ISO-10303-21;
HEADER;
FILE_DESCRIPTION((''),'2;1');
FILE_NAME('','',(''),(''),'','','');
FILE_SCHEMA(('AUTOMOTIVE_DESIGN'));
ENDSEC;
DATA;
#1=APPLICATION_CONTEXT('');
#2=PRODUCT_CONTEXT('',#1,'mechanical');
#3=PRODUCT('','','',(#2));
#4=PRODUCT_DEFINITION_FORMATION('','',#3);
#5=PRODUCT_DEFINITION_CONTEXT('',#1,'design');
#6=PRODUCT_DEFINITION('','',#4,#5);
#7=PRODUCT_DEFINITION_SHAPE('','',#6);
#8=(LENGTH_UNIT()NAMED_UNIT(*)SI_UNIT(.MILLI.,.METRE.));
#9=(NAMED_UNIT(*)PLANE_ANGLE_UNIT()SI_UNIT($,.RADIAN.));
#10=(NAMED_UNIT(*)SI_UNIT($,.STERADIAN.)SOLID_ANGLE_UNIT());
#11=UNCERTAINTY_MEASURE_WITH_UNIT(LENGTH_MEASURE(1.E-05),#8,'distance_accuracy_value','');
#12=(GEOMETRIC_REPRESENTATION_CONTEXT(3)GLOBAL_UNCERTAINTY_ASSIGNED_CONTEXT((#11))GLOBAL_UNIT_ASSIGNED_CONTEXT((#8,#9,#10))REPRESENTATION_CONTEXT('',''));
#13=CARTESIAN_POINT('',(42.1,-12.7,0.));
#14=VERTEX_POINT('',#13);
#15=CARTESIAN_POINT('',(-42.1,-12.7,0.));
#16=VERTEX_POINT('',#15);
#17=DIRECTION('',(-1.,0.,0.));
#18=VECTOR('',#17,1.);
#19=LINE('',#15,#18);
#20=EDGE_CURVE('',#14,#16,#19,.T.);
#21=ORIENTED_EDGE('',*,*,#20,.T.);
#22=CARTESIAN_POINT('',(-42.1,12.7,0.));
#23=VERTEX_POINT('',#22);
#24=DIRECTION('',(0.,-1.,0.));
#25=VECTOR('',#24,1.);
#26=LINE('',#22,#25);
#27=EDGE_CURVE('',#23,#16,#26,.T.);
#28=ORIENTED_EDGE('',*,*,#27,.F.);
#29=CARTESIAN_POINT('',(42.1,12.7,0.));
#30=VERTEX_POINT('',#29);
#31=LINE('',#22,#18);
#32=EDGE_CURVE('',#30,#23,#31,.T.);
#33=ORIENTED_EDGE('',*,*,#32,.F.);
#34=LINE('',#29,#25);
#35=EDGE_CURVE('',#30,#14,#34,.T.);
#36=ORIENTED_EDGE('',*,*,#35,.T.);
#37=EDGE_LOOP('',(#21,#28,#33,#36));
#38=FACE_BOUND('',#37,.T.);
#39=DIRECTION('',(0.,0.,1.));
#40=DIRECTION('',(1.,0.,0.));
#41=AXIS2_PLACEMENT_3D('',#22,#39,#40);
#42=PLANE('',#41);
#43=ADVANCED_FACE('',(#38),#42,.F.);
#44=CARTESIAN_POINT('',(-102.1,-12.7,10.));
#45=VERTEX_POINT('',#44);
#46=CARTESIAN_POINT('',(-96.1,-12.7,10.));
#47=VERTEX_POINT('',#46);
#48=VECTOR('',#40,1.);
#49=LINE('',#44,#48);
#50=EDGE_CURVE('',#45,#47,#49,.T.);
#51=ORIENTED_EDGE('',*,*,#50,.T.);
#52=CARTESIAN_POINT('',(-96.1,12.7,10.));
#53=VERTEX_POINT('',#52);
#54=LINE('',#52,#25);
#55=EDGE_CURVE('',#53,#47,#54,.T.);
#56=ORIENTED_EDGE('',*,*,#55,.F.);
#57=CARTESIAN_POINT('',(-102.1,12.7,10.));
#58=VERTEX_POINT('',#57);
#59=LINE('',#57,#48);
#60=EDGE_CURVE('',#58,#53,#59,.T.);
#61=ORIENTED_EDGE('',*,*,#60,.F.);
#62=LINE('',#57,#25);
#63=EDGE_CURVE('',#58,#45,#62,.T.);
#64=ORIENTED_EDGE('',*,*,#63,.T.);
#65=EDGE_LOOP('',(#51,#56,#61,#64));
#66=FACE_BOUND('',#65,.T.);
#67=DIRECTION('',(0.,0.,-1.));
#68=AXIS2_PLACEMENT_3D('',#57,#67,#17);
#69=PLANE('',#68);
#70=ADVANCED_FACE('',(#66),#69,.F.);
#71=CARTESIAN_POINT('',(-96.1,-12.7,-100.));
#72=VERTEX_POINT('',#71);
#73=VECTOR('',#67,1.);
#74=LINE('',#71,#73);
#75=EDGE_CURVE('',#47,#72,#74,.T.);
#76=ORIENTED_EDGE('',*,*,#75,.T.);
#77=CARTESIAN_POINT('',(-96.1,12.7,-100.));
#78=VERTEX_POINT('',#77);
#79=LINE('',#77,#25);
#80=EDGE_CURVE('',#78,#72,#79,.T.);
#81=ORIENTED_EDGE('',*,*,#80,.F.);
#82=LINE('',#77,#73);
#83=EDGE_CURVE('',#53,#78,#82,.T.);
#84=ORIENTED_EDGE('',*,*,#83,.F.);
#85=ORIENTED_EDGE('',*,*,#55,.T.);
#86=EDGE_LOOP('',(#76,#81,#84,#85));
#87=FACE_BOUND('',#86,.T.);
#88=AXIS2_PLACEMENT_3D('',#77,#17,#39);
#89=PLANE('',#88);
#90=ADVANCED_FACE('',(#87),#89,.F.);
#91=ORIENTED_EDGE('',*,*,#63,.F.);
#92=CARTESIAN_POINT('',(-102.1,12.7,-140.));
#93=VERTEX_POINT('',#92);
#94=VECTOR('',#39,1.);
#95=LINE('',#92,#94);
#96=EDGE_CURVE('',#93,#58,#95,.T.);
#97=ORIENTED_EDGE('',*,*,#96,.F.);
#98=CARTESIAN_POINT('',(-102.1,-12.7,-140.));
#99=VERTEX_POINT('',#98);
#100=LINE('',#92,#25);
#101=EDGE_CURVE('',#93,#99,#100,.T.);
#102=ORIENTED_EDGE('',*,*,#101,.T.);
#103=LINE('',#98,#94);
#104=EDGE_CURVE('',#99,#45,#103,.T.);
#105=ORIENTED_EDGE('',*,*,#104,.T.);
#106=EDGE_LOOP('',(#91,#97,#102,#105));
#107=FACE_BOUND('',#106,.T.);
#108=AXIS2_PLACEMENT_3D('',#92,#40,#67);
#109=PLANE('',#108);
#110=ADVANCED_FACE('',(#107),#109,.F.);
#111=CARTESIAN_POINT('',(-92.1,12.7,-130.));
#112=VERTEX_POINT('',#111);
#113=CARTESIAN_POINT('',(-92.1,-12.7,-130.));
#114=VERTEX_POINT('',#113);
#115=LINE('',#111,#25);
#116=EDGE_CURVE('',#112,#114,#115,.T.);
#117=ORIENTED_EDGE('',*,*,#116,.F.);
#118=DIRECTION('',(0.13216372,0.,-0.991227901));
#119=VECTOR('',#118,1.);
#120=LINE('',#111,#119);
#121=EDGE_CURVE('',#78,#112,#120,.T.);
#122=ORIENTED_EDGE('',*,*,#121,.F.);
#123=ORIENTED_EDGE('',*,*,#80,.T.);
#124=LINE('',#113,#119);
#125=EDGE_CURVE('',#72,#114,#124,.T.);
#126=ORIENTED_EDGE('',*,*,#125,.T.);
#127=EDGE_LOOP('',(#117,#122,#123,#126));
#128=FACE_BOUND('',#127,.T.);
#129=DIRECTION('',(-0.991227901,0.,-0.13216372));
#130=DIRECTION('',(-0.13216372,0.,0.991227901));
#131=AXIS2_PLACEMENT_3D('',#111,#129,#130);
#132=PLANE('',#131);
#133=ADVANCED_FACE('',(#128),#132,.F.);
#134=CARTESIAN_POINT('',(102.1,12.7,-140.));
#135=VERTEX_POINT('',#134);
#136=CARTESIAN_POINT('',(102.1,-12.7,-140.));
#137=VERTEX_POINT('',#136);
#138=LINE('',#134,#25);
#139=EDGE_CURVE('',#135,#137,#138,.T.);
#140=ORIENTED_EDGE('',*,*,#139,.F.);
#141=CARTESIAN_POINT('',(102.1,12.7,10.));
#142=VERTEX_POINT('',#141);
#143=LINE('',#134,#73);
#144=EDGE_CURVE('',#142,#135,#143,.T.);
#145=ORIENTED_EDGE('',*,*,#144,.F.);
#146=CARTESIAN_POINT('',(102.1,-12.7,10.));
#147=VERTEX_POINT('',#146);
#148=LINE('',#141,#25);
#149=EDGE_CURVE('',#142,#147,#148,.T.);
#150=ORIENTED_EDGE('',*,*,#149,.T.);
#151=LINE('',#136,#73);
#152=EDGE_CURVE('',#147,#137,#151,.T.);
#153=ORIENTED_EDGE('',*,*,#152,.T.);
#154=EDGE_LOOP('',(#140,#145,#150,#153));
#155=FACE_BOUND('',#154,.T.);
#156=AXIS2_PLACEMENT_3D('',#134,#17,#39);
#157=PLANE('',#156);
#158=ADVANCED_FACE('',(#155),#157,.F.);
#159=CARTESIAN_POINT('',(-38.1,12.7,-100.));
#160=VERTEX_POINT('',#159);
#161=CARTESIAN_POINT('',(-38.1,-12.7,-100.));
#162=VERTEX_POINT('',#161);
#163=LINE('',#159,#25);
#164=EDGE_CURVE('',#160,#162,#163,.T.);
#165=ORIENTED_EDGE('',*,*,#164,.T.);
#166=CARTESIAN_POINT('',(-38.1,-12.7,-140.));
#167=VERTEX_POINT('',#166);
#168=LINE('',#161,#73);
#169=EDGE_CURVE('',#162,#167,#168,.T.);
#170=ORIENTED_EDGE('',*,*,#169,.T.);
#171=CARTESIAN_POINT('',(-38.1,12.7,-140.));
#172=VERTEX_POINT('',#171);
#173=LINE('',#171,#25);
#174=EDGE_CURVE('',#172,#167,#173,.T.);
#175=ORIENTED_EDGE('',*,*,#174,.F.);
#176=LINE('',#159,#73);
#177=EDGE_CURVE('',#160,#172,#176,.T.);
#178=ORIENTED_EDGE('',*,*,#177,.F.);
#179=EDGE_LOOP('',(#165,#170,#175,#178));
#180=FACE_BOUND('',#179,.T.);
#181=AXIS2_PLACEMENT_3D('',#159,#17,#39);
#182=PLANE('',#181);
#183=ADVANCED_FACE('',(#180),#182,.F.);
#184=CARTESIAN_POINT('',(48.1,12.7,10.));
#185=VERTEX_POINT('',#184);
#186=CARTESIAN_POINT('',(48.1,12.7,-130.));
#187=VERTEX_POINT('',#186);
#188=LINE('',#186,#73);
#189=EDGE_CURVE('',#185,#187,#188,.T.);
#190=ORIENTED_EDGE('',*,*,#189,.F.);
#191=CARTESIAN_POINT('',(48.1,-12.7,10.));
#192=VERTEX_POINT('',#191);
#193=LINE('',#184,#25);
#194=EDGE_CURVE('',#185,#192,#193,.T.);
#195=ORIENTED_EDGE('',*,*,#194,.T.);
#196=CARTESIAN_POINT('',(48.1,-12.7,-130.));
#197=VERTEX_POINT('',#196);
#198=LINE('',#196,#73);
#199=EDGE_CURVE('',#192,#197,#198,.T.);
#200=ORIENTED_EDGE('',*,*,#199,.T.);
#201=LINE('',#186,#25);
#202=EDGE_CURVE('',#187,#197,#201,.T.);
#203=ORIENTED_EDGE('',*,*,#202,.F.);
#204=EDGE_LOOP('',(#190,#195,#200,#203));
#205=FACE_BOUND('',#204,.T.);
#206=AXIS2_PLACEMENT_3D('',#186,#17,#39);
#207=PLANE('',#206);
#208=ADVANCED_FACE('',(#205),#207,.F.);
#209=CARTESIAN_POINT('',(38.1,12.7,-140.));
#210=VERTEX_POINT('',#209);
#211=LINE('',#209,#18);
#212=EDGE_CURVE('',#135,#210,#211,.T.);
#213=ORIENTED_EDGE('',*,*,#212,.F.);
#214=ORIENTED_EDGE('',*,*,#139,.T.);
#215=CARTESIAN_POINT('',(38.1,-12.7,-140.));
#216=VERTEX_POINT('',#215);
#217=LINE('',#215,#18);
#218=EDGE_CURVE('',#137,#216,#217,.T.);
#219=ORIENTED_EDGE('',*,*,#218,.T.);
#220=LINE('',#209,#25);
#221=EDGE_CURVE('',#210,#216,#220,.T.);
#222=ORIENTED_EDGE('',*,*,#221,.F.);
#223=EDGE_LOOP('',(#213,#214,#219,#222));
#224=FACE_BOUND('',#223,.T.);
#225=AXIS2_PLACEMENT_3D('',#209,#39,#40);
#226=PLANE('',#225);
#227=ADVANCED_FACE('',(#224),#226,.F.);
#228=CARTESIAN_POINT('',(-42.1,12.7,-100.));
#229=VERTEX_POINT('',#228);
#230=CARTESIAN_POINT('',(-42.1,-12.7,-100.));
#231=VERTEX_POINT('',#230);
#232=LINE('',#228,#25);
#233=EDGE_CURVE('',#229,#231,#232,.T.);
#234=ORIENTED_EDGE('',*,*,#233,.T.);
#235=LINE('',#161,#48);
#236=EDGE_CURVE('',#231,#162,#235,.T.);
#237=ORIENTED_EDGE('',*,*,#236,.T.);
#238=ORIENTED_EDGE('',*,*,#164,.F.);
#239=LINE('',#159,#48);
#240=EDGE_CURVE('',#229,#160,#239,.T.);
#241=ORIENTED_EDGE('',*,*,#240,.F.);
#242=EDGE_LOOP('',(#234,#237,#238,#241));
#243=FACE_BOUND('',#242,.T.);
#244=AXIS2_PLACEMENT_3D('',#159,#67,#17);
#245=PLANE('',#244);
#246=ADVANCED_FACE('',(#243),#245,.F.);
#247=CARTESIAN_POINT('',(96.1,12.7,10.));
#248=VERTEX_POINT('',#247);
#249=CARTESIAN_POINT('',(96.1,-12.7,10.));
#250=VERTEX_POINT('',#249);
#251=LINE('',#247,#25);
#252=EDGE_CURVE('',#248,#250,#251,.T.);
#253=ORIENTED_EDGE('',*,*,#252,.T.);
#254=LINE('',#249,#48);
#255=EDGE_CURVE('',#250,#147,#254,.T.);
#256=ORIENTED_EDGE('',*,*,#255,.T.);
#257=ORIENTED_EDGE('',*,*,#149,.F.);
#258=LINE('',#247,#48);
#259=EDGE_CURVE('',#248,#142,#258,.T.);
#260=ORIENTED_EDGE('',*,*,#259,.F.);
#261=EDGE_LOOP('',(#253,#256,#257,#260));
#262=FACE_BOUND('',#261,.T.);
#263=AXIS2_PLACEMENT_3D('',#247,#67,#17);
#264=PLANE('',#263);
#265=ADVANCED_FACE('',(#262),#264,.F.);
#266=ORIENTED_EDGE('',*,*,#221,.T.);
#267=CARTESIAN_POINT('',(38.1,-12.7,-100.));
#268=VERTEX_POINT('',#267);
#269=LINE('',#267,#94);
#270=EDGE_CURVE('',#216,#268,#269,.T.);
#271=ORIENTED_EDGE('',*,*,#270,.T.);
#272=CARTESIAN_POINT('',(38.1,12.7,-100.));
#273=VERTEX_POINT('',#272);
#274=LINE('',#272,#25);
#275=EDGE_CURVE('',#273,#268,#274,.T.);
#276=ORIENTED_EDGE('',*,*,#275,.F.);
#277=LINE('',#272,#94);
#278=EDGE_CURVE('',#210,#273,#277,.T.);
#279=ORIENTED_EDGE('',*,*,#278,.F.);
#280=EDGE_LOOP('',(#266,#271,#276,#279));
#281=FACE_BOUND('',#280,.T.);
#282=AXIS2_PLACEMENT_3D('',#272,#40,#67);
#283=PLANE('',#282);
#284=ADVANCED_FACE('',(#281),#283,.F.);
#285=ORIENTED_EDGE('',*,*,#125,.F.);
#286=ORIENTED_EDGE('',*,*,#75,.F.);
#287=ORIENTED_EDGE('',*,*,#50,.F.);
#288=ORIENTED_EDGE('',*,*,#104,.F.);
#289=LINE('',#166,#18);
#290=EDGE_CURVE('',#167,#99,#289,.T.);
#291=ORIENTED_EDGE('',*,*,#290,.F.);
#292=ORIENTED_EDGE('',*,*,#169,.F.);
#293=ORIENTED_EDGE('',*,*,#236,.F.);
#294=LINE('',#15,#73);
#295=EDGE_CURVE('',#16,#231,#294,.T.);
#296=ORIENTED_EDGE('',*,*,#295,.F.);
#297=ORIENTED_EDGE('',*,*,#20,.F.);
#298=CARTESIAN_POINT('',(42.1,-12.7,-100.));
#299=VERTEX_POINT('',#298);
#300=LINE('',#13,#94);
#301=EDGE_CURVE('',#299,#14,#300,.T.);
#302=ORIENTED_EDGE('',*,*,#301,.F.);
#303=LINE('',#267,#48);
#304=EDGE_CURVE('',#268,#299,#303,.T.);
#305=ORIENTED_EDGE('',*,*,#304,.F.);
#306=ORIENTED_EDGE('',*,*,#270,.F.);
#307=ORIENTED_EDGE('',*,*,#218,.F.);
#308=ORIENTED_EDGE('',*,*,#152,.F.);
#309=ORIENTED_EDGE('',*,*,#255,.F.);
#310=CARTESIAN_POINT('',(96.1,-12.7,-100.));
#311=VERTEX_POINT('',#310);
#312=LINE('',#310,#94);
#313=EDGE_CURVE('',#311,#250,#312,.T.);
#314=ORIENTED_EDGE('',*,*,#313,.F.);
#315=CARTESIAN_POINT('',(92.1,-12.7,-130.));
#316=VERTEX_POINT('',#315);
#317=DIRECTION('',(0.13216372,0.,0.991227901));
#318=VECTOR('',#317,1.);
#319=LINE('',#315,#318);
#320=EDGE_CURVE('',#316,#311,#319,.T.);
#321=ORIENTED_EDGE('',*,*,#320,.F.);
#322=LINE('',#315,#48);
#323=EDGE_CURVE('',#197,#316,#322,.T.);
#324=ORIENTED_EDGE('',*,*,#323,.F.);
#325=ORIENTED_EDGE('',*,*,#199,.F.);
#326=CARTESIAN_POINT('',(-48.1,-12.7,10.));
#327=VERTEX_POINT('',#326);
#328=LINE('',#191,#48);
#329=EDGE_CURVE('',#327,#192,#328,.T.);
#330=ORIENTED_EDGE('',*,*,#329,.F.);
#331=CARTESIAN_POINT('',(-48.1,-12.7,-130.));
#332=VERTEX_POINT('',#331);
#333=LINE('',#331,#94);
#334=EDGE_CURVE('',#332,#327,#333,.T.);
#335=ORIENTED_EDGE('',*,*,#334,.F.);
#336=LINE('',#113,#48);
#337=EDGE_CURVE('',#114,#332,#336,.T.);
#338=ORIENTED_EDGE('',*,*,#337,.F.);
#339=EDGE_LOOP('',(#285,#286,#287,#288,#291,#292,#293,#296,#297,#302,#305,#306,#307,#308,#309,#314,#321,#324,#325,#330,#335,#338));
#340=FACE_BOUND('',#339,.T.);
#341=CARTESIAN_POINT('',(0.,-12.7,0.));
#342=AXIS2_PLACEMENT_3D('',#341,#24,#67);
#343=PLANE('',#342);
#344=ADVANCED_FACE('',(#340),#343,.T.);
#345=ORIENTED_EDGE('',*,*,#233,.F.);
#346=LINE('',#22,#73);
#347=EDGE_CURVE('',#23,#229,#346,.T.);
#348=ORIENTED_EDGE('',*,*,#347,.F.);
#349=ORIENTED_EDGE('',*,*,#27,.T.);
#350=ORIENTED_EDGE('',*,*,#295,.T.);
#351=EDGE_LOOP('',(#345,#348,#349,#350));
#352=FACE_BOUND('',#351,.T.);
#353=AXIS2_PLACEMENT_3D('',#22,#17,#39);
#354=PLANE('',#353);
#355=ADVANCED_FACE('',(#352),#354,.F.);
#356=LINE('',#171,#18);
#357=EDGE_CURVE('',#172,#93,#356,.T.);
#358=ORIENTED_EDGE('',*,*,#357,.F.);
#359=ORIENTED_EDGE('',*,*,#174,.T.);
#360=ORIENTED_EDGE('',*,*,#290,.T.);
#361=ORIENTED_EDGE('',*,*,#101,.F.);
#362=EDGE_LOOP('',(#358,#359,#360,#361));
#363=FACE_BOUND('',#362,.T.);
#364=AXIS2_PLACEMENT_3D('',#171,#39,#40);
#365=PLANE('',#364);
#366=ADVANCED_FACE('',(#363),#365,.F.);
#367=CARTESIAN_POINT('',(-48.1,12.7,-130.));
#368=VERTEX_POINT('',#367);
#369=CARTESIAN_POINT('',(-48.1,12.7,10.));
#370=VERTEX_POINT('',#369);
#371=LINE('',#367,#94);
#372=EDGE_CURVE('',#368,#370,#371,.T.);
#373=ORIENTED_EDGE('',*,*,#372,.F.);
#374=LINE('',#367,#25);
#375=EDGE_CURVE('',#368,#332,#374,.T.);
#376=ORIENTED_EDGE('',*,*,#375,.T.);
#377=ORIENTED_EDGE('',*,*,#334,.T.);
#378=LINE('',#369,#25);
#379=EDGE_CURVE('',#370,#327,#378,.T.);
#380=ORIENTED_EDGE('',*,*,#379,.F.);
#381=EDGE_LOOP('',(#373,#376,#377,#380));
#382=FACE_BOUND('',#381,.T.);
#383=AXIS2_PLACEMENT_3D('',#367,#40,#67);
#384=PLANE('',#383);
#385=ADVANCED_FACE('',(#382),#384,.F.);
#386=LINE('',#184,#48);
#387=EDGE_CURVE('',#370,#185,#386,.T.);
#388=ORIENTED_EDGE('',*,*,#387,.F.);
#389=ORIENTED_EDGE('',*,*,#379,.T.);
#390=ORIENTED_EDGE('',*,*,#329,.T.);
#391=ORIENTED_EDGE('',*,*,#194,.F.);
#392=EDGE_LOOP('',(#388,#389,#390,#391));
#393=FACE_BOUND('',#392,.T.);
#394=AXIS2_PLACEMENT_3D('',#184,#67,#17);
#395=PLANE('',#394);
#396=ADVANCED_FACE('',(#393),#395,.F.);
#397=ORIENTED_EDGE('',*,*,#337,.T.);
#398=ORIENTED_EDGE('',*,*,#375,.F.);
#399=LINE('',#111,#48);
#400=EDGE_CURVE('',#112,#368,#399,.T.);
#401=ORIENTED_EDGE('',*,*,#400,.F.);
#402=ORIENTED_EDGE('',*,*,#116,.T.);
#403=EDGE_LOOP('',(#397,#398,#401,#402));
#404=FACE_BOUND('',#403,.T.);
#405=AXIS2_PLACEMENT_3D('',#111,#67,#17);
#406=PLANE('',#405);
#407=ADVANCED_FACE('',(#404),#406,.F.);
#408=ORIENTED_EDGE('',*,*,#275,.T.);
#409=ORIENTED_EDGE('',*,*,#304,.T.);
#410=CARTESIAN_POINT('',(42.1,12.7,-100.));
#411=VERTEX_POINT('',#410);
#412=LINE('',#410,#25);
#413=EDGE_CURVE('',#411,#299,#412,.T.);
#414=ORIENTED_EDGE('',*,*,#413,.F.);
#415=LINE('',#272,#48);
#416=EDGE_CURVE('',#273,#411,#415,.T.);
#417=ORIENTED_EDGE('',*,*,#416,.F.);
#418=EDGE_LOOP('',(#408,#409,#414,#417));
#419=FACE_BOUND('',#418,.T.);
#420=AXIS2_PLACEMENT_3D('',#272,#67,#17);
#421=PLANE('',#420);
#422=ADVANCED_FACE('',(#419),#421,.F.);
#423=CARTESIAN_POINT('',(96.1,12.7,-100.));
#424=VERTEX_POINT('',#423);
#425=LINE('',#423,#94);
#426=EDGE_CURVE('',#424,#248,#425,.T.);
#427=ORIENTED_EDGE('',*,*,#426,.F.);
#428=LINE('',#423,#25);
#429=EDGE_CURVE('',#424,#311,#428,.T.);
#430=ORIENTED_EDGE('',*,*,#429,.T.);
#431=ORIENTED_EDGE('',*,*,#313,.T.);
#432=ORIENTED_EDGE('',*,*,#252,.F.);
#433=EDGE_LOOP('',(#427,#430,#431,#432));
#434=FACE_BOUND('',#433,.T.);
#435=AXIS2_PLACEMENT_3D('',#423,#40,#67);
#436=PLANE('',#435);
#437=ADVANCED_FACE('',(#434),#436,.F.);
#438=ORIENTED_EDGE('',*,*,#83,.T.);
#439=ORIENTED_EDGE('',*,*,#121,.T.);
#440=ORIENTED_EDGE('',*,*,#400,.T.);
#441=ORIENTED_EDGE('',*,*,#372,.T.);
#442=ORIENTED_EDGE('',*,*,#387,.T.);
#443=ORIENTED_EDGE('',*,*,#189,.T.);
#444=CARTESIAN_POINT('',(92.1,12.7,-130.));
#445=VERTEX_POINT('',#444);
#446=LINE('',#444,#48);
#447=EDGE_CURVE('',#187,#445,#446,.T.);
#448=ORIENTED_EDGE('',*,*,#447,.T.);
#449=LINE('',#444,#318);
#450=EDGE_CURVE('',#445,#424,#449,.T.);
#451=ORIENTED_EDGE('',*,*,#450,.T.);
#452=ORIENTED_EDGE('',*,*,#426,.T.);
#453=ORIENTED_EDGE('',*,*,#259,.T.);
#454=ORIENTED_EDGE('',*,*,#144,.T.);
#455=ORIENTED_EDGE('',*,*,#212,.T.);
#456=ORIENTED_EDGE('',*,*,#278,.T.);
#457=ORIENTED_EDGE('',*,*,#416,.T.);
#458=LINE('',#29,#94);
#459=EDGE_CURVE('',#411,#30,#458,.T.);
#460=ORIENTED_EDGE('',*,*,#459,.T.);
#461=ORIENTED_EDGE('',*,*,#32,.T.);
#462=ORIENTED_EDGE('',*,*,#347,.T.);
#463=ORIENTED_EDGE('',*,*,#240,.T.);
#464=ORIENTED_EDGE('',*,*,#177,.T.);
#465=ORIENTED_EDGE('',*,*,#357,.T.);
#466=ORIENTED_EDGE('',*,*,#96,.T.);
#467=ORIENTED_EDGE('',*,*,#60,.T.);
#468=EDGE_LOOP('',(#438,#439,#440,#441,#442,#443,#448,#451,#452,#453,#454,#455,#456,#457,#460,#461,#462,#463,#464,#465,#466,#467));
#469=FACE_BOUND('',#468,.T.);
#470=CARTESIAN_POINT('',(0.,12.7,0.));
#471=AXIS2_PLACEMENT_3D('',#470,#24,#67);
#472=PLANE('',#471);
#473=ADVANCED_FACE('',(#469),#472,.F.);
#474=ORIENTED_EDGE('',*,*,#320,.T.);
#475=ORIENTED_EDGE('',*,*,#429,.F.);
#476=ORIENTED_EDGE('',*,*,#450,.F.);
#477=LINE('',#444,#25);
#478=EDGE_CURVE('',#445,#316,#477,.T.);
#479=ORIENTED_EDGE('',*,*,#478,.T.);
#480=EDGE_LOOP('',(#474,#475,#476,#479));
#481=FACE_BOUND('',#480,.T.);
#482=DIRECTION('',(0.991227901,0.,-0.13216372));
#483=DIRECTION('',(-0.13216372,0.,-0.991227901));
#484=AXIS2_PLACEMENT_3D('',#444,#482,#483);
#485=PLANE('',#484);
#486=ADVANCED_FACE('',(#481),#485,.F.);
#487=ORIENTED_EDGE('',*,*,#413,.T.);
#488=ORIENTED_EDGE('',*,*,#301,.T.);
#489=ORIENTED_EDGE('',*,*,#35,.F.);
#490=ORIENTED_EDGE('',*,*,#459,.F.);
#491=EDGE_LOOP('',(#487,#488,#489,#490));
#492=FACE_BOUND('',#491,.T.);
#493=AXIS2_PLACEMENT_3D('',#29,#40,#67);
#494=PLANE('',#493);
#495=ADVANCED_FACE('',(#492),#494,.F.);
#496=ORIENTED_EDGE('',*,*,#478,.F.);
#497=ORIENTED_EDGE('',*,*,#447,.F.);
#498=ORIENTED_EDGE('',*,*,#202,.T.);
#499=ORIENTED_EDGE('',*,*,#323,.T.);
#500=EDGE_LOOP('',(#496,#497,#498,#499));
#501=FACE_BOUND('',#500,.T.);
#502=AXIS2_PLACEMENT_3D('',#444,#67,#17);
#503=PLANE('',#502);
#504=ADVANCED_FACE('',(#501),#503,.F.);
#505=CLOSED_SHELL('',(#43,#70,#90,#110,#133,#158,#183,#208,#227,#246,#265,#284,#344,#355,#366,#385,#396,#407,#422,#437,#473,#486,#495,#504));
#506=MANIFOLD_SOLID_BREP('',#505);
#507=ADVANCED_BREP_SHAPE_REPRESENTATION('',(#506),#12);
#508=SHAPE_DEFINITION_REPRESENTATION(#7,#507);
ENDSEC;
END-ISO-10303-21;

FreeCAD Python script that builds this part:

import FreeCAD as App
import Part
import Sketcher
from FreeCAD import Vector


def add_polygon(sketch, points):
    """Adds a closed chain of lines whose ends are joined by coincident constraints."""
    first, n = sketch.GeometryCount, len(points)
    for a, b in zip(points, points[1:] + points[:1]):
        sketch.addGeometry(Part.LineSegment(App.Vector(*a, 0), App.Vector(*b, 0)), False)
    for i in range(n):
        sketch.addConstraint(Sketcher.Constraint("Coincident", first + i, 2, first + (i + 1) % n, 1))

doc = App.newDocument("Part")
params = doc.addObject("Spreadsheet::Sheet", "Params")
for row, (alias, value) in enumerate([
    ("sketch1_width", "44 mm"),
    ("sketch1_width2", "6 mm"),
    ("sketch1_width3", "64 mm"),
    ("sketch1_width4", "4 mm"),
    ("sketch1_height", "140 mm"),
    ("pad1_length", "25.4 mm"),
], start=1):
    params.set(f"A{row}", alias)
    params.set(f"B{row}", "=" + value)
    params.setAlias(f"B{row}", alias)

body = doc.addObject("PartDesign::Body", "Body")

# Sketch on XZ plane
sketch1 = body.newObject("Sketcher::SketchObject", "Sketch")
sketch1.AttachmentSupport = (doc.getObject("XZ_Plane"), [""])
sketch1.MapMode = "FlatFace"
add_polygon(sketch1, [(-96.1, -100), (-92.1, -130), (-48.1, -130), (-48.1, 10), (48.1, 10), (48.1, -130), (92.1, -130), (96.1, -100), (96.1, 10), (102.1, 10), (102.1, -140), (38.1, -140), (38.1, -100), (42.1, -100), (42.1, 0), (-42.1, 0), (-42.1, -100), (-38.1, -100), (-38.1, -140), (-102.1, -140), (-102.1, 10), (-96.1, 10)])  # lines 0-21
sketch1.addConstraint([
    Sketcher.Constraint("Horizontal", 1),
    Sketcher.Constraint("Vertical", 2),
    Sketcher.Constraint("Horizontal", 3),
    Sketcher.Constraint("Vertical", 4),
    Sketcher.Constraint("Horizontal", 5),
    Sketcher.Constraint("Vertical", 7),
    Sketcher.Constraint("Horizontal", 8),
    Sketcher.Constraint("Vertical", 9),
    Sketcher.Constraint("Horizontal", 10),
    Sketcher.Constraint("Vertical", 11),
    Sketcher.Constraint("Horizontal", 12),
    Sketcher.Constraint("Vertical", 13),
    Sketcher.Constraint("Horizontal", 14),
    Sketcher.Constraint("Vertical", 15),
    Sketcher.Constraint("Horizontal", 16),
    Sketcher.Constraint("Vertical", 17),
    Sketcher.Constraint("Horizontal", 18),
    Sketcher.Constraint("Vertical", 19),
    Sketcher.Constraint("Horizontal", 20),
    Sketcher.Constraint("Vertical", 21),
    Sketcher.Constraint("Symmetric", 13, 2, 14, 2, -1, 1),
    Sketcher.Constraint("Symmetric", 1, 2, 4, 2, -2),
    Sketcher.Constraint("Symmetric", 11, 2, 16, 2, -2),
    Sketcher.Constraint("Symmetric", 9, 2, 18, 2, -2),
    Sketcher.Constraint("Symmetric", 7, 2, 20, 2, -2),
    Sketcher.Constraint("Horizontal", 3, 2, 7, 2),
    Sketcher.Constraint("Horizontal", 6, 2, 11, 2),
    Sketcher.Constraint("Horizontal", 16, 2, 21, 2),
    Sketcher.Constraint("Equal", 1, 5),
    Sketcher.Constraint("DistanceX", 1, 1, 1, 2, 44.0),
    Sketcher.Constraint("DistanceX", 8, 1, 8, 2, 6.0),
    Sketcher.Constraint("DistanceX", 10, 2, 10, 1, 64.0),
    Sketcher.Constraint("DistanceX", 12, 1, 12, 2, 4.0),
    Sketcher.Constraint("DistanceY", 2, 1, 2, 2, 140.0),
    Sketcher.Constraint("DistanceY", 7, 1, 7, 2, 110.0),
    Sketcher.Constraint("DistanceY", 9, 2, 9, 1, 150.0),
    Sketcher.Constraint("DistanceY", 13, 1, 13, 2, 100.0),
    Sketcher.Constraint("DistanceX", 3, 1, 3, 2, 96.2),
    Sketcher.Constraint("DistanceX", 14, 2, 14, 1, 84.2),
])
sketch1.setExpression("Constraints[51]", "Params.sketch1_width")
sketch1.setExpression("Constraints[52]", "Params.sketch1_width2")
sketch1.setExpression("Constraints[53]", "Params.sketch1_width3")
sketch1.setExpression("Constraints[54]", "Params.sketch1_width4")
sketch1.setExpression("Constraints[55]", "Params.sketch1_height")
pad1 = body.newObject("PartDesign::Pad", "Pad")
pad1.Profile = sketch1
pad1.setExpression("Length", "Params.pad1_length")
pad1.Midplane = True

doc.recompute()
